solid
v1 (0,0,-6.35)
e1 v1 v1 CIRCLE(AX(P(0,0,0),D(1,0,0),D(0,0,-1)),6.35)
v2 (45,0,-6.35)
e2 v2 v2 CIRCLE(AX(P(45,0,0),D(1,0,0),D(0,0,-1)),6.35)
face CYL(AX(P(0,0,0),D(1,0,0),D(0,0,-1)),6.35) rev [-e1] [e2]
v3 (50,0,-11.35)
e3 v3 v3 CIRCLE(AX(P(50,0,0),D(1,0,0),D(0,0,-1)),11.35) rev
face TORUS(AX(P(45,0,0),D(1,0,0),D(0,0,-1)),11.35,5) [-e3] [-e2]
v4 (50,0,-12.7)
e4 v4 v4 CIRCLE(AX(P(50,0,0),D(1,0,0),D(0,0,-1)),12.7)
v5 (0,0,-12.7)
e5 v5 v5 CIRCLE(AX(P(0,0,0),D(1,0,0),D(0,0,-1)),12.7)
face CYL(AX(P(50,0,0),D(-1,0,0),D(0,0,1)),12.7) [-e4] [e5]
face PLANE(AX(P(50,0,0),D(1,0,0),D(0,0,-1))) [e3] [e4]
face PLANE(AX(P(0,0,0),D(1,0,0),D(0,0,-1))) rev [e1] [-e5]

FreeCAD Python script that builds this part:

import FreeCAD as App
import Part
import Sketcher
from FreeCAD import Vector
Q = App.Units.Quantity


def edges_at(feature, points):
    """Names of the edges that pass closest to the given points."""
    edges = feature.Shape.Edges
    near = lambda p: min(range(len(edges)), key=lambda i: edges[i].distToShape(Part.Vertex(*p))[0])
    return sorted({f"Edge{near(p) + 1}" for p in points})

doc = App.newDocument("Part")
params = doc.addObject("Spreadsheet::Sheet", "Params")
for row, (alias, value) in enumerate([
    ("sketch1_diameter", "25.4 mm"),
    ("pad1_length", "50 mm"),
    ("sketch2_diameter", "12.7 mm"),
    ("fillet_radius", "5 mm"),
], start=1):
    params.set(f"A{row}", alias)
    params.set(f"B{row}", "=" + value)
    params.setAlias(f"B{row}", alias)

body = doc.addObject("PartDesign::Body", "Body")

sketch1 = body.newObject("Sketcher::SketchObject", "Sketch")
sketch1.AttachmentSupport = (doc.getObject("YZ_Plane"), [""])
sketch1.MapMode = "FlatFace"
sketch1.addGeometry(Part.Circle(Vector(0, 0, 0), Vector(0, 0, 1), 13), False)
sketch1.addConstraint([
    Sketcher.Constraint("Coincident", 0, 3, -1, 1),
    Sketcher.Constraint("Diameter", 0, Q("25.4 mm")),
])
sketch1.setExpression("Constraints[1]", "Params.sketch1_diameter")
pad1 = body.newObject("PartDesign::Pad", "Pad")
pad1.Profile = sketch1
pad1.setExpression("Length", "Params.pad1_length")

sketch2 = body.newObject("Sketcher::SketchObject", "Sketch001")
sketch2.AttachmentSupport = (doc.getObject("YZ_Plane"), [""])
sketch2.MapMode = "FlatFace"
sketch2.AttachmentOffset = App.Placement(Vector(0, 0, 50), App.Rotation())
sketch2.addGeometry(Part.Circle(Vector(0, 0, 0), Vector(0, 0, 1), 6), False)
sketch2.addConstraint([
    Sketcher.Constraint("Coincident", 0, 3, -1, 1),
    Sketcher.Constraint("Diameter", 0, Q("12.7 mm")),
])
sketch2.setExpression("Constraints[1]", "Params.sketch2_diameter")
pocket1 = body.newObject("PartDesign::Pocket", "Pocket")
pocket1.Profile = sketch2
pocket1.Type = "ThroughAll"
doc.recompute()

fillet = body.newObject("PartDesign::Fillet", "Fillet")
fillet.Base = (pocket1, edges_at(pocket1, [(50, 0, 6.35)]))
fillet.setExpression("Radius", "Params.fillet_radius")

doc.recompute()
